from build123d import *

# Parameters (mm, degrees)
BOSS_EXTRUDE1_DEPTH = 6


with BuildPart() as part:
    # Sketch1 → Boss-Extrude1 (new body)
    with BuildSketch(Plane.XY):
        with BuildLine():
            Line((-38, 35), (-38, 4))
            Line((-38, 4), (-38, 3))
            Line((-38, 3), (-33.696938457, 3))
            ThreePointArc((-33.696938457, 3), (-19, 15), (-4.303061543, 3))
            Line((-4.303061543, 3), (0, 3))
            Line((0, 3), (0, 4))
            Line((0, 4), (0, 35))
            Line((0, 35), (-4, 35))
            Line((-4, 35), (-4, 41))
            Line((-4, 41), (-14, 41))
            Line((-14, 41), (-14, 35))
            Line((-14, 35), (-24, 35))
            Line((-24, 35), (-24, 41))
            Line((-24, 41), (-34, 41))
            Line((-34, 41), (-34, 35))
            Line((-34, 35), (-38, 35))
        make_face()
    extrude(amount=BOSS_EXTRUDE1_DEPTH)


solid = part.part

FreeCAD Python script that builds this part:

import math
import FreeCAD as App
import Part
import Sketcher
Q = App.Units.Quantity

doc = App.newDocument("Part")
body = doc.addObject("PartDesign::Body", "Body")

sketch1 = body.newObject("Sketcher::SketchObject", "Sketch")
sketch1.AttachmentSupport = (doc.getObject("XY_Plane"), [""])
sketch1.MapMode = "FlatFace"
sketch1.addGeometry([
    Part.LineSegment(App.Vector(-38, 35, 0), App.Vector(-38, 3, 0)),
    Part.LineSegment(App.Vector(-38, 3, 0), App.Vector(-33.696938, 3, 0)),
    Part.ArcOfCircle(Part.Circle(App.Vector(-19, 0, 0), App.Vector(0, 0, 1), 15), math.radians(11.536959), math.radians(168.463041)),
    Part.LineSegment(App.Vector(-4.303062, 3, 0), App.Vector(0, 3, 0)),
    Part.LineSegment(App.Vector(0, 3, 0), App.Vector(0, 35, 0)),
    Part.LineSegment(App.Vector(0, 35, 0), App.Vector(-4, 35, 0)),
    Part.LineSegment(App.Vector(-4, 35, 0), App.Vector(-4, 41, 0)),
    Part.LineSegment(App.Vector(-4, 41, 0), App.Vector(-14, 41, 0)),
    Part.LineSegment(App.Vector(-14, 41, 0), App.Vector(-14, 35, 0)),
    Part.LineSegment(App.Vector(-14, 35, 0), App.Vector(-24, 35, 0)),
    Part.LineSegment(App.Vector(-24, 35, 0), App.Vector(-24, 41, 0)),
    Part.LineSegment(App.Vector(-24, 41, 0), App.Vector(-34, 41, 0)),
    Part.LineSegment(App.Vector(-34, 41, 0), App.Vector(-34, 35, 0)),
    Part.LineSegment(App.Vector(-34, 35, 0), App.Vector(-38, 35, 0)),
], False)
sketch1.addConstraint([
    Sketcher.Constraint("Coincident", 0, 2, 1, 1),
    Sketcher.Constraint("Coincident", 1, 2, 2, 2),
    Sketcher.Constraint("Coincident", 2, 1, 3, 1),
    Sketcher.Constraint("Coincident", 3, 2, 4, 1),
    Sketcher.Constraint("Coincident", 4, 2, 5, 1),
    Sketcher.Constraint("Coincident", 5, 2, 6, 1),
    Sketcher.Constraint("Coincident", 6, 2, 7, 1),
    Sketcher.Constraint("Coincident", 7, 2, 8, 1),
    Sketcher.Constraint("Coincident", 8, 2, 9, 1),
    Sketcher.Constraint("Coincident", 9, 2, 10, 1),
    Sketcher.Constraint("Coincident", 10, 2, 11, 1),
    Sketcher.Constraint("Coincident", 11, 2, 12, 1),
    Sketcher.Constraint("Coincident", 12, 2, 13, 1),
    Sketcher.Constraint("Coincident", 13, 2, 0, 1),
    Sketcher.Constraint("Vertical", 0),
    Sketcher.Constraint("Horizontal", 1),
    Sketcher.Constraint("Horizontal", 3),
    Sketcher.Constraint("Vertical", 4),
    Sketcher.Constraint("Horizontal", 5),
    Sketcher.Constraint("Vertical", 6),
    Sketcher.Constraint("Horizontal", 7),
    Sketcher.Constraint("Vertical", 8),
    Sketcher.Constraint("Horizontal", 9),
    Sketcher.Constraint("Vertical", 10),
    Sketcher.Constraint("Horizontal", 11),
    Sketcher.Constraint("Vertical", 12),
    Sketcher.Constraint("Horizontal", 13),
    Sketcher.Constraint("PointOnObject", 2, 3, -1),
    Sketcher.Constraint("PointOnObject", 3, 2, -2),
    Sketcher.Constraint("Horizontal", 1, 2, 2, 1),
    Sketcher.Constraint("Horizontal", 5, 2, 8, 2),
    Sketcher.Constraint("Horizontal", 7, 2, 10, 2),
    Sketcher.Constraint("Horizontal", 9, 2, 12, 2),
    Sketcher.Constraint("Equal", 1, 3),
    Sketcher.Constraint("Equal", 7, 9),
    Sketcher.Constraint("Equal", 9, 11),
    Sketcher.Constraint("Equal", 5, 13),
    Sketcher.Constraint("Radius", 2, Q("15 mm")),
    Sketcher.Constraint("DistanceX", 5, 2, 5, 1, Q("4 mm")),
    Sketcher.Constraint("DistanceX", 7, 2, 7, 1, Q("10 mm")),
    Sketcher.Constraint("DistanceY", 0, 2, 0, 1, Q("32 mm")),
    Sketcher.Constraint("DistanceY", 6, 1, 6, 2, Q("6 mm")),
    Sketcher.Constraint("DistanceY", -1, 1, 0, 2, Q("3 mm")),
])
pad1 = body.newObject("PartDesign::Pad", "Pad")
pad1.Profile = sketch1
pad1.Length = 6

doc.recompute()
